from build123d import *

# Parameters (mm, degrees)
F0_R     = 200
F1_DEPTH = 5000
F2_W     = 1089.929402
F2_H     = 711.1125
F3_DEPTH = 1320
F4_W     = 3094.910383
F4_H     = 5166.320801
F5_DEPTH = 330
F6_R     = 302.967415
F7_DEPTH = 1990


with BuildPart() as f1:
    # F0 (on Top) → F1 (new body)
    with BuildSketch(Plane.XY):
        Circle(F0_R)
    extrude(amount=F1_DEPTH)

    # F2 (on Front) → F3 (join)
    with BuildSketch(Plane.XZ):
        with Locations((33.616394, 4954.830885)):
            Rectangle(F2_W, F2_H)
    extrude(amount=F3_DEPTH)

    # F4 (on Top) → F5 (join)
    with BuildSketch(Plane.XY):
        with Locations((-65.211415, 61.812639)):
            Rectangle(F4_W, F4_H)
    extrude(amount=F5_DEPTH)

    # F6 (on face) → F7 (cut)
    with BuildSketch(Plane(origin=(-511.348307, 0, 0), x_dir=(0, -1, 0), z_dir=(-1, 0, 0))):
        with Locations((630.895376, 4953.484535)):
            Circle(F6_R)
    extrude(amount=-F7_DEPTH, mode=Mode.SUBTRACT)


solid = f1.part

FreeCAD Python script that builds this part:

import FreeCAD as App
import Part
import Sketcher

V = App.Vector
Q = App.Units.Quantity

doc = App.newDocument("Part")
body = doc.addObject("PartDesign::Body", "Body")

# Sketch on XY plane
sketch1 = body.newObject("Sketcher::SketchObject", "Sketch")
sketch1.AttachmentSupport = (doc.getObject("XY_Plane"), [""])
sketch1.MapMode = "FlatFace"
sketch1.addGeometry(Part.Circle(V(0, 0, 0), V(0, 0, 1), 200), False)
sketch1.addConstraint([
    Sketcher.Constraint("Coincident", 0, 3, -1, 1),
    Sketcher.Constraint("Diameter", 0, Q("400 mm")),
])
pad1 = body.newObject("PartDesign::Pad", "Pad")
pad1.Profile = sketch1
pad1.Length = 5000

# Sketch on XZ plane
sketch2 = body.newObject("Sketcher::SketchObject", "Sketch001")
sketch2.AttachmentSupport = (doc.getObject("XZ_Plane"), [""])
sketch2.MapMode = "FlatFace"
sketch2.addGeometry([
    Part.LineSegment(V(-511, 5310, 0), V(-511, 4599, 0)),
    Part.LineSegment(V(-511, 4599, 0), V(579, 4599, 0)),
    Part.LineSegment(V(579, 4599, 0), V(579, 5310, 0)),
    Part.LineSegment(V(579, 5310, 0), V(-511, 5310, 0)),
], False)
sketch2.addConstraint([
    Sketcher.Constraint("Coincident", 0, 2, 1, 1),
    Sketcher.Constraint("Coincident", 1, 2, 2, 1),
    Sketcher.Constraint("Coincident", 2, 2, 3, 1),
    Sketcher.Constraint("Coincident", 3, 2, 0, 1),
    Sketcher.Constraint("Vertical", 0),
    Sketcher.Constraint("Horizontal", 1),
    Sketcher.Constraint("Vertical", 2),
    Sketcher.Constraint("Horizontal", 3),
    Sketcher.Constraint("DistanceX", 1, 1, 1, 2, Q("1089.929402 mm")),
    Sketcher.Constraint("DistanceY", 0, 2, 0, 1, Q("711.1125 mm")),
    Sketcher.Constraint("DistanceX", 0, 2, -1, 1, Q("511.348307 mm")),
    Sketcher.Constraint("DistanceY", -1, 1, 0, 2, Q("4599.274635 mm")),
])
pad2 = body.newObject("PartDesign::Pad", "Pad001")
pad2.Profile = sketch2
pad2.Length = 1320

# Sketch on XY plane
sketch3 = body.newObject("Sketcher::SketchObject", "Sketch002")
sketch3.AttachmentSupport = (doc.getObject("XY_Plane"), [""])
sketch3.MapMode = "FlatFace"
sketch3.addGeometry([
    Part.LineSegment(V(-1613, 2645, 0), V(-1613, -2521, 0)),
    Part.LineSegment(V(-1613, -2521, 0), V(1482, -2521, 0)),
    Part.LineSegment(V(1482, -2521, 0), V(1482, 2645, 0)),
    Part.LineSegment(V(1482, 2645, 0), V(-1613, 2645, 0)),
], False)
sketch3.addConstraint([
    Sketcher.Constraint("Coincident", 0, 2, 1, 1),
    Sketcher.Constraint("Coincident", 1, 2, 2, 1),
    Sketcher.Constraint("Coincident", 2, 2, 3, 1),
    Sketcher.Constraint("Coincident", 3, 2, 0, 1),
    Sketcher.Constraint("Vertical", 0),
    Sketcher.Constraint("Horizontal", 1),
    Sketcher.Constraint("Vertical", 2),
    Sketcher.Constraint("Horizontal", 3),
    Sketcher.Constraint("DistanceY", 0, 2, 0, 1, Q("5166.320801 mm")),
    Sketcher.Constraint("DistanceX", 1, 1, 1, 2, Q("3094.910383 mm")),
    Sketcher.Constraint("DistanceY", 0, 2, -1, 1, Q("2521.347762 mm")),
    Sketcher.Constraint("DistanceX", 0, 2, -1, 1, Q("1612.666606 mm")),
])
pad3 = body.newObject("PartDesign::Pad", "Pad002")
pad3.Profile = sketch3
pad3.Length = 330

# Sketch on YZ plane
sketch4 = body.newObject("Sketcher::SketchObject", "Sketch003")
sketch4.AttachmentSupport = (doc.getObject("YZ_Plane"), [""])
sketch4.MapMode = "FlatFace"
sketch4.AttachmentOffset = App.Placement(V(0, 0, -511.348307), App.Rotation())
sketch4.addGeometry(Part.Circle(V(-631, 4953, 0), V(0, 0, 1), 303), False)
sketch4.addConstraint([
    Sketcher.Constraint("Diameter", 0, Q("605.93483 mm")),
    Sketcher.Constraint("DistanceX", 0, 3, -1, 1, Q("630.895376 mm")),
    Sketcher.Constraint("DistanceY", -1, 1, 0, 3, Q("4953.484535 mm")),
])
pocket1 = body.newObject("PartDesign::Pocket", "Pocket")
pocket1.Profile = sketch4
pocket1.Length = 1990
pocket1.Reversed = True

doc.recompute()
